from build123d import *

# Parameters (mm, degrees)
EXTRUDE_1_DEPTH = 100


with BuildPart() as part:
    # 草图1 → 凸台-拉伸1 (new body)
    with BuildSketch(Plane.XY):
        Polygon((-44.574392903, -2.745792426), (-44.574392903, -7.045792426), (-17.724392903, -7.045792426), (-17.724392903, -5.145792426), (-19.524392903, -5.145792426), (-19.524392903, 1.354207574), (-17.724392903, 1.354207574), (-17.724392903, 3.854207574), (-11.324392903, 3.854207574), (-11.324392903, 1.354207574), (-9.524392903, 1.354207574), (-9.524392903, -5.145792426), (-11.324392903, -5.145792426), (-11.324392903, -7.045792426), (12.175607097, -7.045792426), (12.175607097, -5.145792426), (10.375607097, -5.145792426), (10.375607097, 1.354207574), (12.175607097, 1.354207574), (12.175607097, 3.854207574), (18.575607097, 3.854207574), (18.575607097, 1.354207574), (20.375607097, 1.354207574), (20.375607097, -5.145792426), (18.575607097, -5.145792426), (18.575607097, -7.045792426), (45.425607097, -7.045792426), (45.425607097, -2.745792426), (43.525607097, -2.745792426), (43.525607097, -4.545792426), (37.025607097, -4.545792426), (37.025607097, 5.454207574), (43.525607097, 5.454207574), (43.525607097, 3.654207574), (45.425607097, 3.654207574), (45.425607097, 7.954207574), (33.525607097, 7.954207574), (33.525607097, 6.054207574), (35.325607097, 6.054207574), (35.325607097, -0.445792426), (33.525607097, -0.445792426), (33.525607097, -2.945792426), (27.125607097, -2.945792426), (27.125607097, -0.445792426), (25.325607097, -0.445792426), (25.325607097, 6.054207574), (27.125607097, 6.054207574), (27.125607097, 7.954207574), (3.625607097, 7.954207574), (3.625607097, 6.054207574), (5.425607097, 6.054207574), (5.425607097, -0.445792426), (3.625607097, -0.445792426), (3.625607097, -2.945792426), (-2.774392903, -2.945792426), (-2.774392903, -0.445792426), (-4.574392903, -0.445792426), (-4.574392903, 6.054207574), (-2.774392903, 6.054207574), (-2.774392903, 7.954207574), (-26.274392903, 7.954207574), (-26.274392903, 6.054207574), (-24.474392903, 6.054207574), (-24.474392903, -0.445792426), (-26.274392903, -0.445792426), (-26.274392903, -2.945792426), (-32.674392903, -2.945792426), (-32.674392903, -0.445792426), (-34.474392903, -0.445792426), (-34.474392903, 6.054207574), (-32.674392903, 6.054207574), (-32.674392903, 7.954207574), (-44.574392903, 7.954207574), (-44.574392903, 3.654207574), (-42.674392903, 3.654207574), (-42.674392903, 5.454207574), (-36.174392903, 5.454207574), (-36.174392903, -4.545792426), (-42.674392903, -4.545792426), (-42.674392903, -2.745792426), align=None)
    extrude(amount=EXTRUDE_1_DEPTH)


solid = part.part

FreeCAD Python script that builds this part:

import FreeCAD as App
import Part
import Sketcher

V = App.Vector


def add_polygon(sketch, points):
    """Adds a closed chain of lines whose ends are joined by coincident constraints."""
    first, n = sketch.GeometryCount, len(points)
    for a, b in zip(points, points[1:] + points[:1]):
        sketch.addGeometry(Part.LineSegment(App.Vector(*a, 0), App.Vector(*b, 0)), False)
    for i in range(n):
        sketch.addConstraint(Sketcher.Constraint("Coincident", first + i, 2, first + (i + 1) % n, 1))

doc = App.newDocument("Part")
body = doc.addObject("PartDesign::Body", "Body")

sketch1 = body.newObject("Sketcher::SketchObject", "Sketch")
sketch1.AttachmentSupport = (doc.getObject("XY_Plane"), [""])
sketch1.MapMode = "FlatFace"
add_polygon(sketch1, [(-44.6, -2.7), (-44.6, -7), (-17.7, -7), (-17.7, -5.1), (-19.5, -5.1), (-19.5, 1.4), (-17.7, 1.4), (-17.7, 3.9), (-11.3, 3.9), (-11.3, 1.4), (-9.5, 1.4), (-9.5, -5.1), (-11.3, -5.1), (-11.3, -7), (12.2, -7), (12.2, -5.1), (10.4, -5.1), (10.4, 1.4), (12.2, 1.4), (12.2, 3.9), (18.6, 3.9), (18.6, 1.4), (20.4, 1.4), (20.4, -5.1), (18.6, -5.1), (18.6, -7), (45.4, -7), (45.4, -2.7), (43.5, -2.7), (43.5, -4.5), (37, -4.5), (37, 5.5), (43.5, 5.5), (43.5, 3.7), (45.4, 3.7), (45.4, 8), (33.5, 8), (33.5, 6.1), (35.3, 6.1), (35.3, -0.4), (33.5, -0.4), (33.5, -2.9), (27.1, -2.9), (27.1, -0.4), (25.3, -0.4), (25.3, 6.1), (27.1, 6.1), (27.1, 8), (3.6, 8), (3.6, 6.1), (5.4, 6.1), (5.4, -0.4), (3.6, -0.4), (3.6, -2.9), (-2.8, -2.9), (-2.8, -0.4), (-4.6, -0.4), (-4.6, 6.1), (-2.8, 6.1), (-2.8, 8), (-26.3, 8), (-26.3, 6.1), (-24.5, 6.1), (-24.5, -0.4), (-26.3, -0.4), (-26.3, -2.9), (-32.7, -2.9), (-32.7, -0.4), (-34.5, -0.4), (-34.5, 6.1), (-32.7, 6.1), (-32.7, 8), (-44.6, 8), (-44.6, 3.7), (-42.7, 3.7), (-42.7, 5.5), (-36.2, 5.5), (-36.2, -4.5), (-42.7, -4.5), (-42.7, -2.7)])
sketch1.addConstraint(Sketcher.Constraint("Vertical", 0))
sketch1.addConstraint(Sketcher.Constraint("Horizontal", 1))
sketch1.addConstraint(Sketcher.Constraint("Vertical", 2))
sketch1.addConstraint(Sketcher.Constraint("Horizontal", 3))
sketch1.addConstraint(Sketcher.Constraint("Vertical", 4))
sketch1.addConstraint(Sketcher.Constraint("Horizontal", 5))
sketch1.addConstraint(Sketcher.Constraint("Vertical", 6))
sketch1.addConstraint(Sketcher.Constraint("Horizontal", 7))
sketch1.addConstraint(Sketcher.Constraint("Vertical", 8))
sketch1.addConstraint(Sketcher.Constraint("Horizontal", 9))
sketch1.addConstraint(Sketcher.Constraint("Vertical", 10))
sketch1.addConstraint(Sketcher.Constraint("Horizontal", 11))
sketch1.addConstraint(Sketcher.Constraint("Vertical", 12))
sketch1.addConstraint(Sketcher.Constraint("Horizontal", 13))
sketch1.addConstraint(Sketcher.Constraint("Vertical", 14))
sketch1.addConstraint(Sketcher.Constraint("Horizontal", 15))
sketch1.addConstraint(Sketcher.Constraint("Vertical", 16))
sketch1.addConstraint(Sketcher.Constraint("Horizontal", 17))
sketch1.addConstraint(Sketcher.Constraint("Vertical", 18))
sketch1.addConstraint(Sketcher.Constraint("Horizontal", 19))
sketch1.addConstraint(Sketcher.Constraint("Vertical", 20))
sketch1.addConstraint(Sketcher.Constraint("Horizontal", 21))
sketch1.addConstraint(Sketcher.Constraint("Vertical", 22))
sketch1.addConstraint(Sketcher.Constraint("Horizontal", 23))
sketch1.addConstraint(Sketcher.Constraint("Vertical", 24))
sketch1.addConstraint(Sketcher.Constraint("Horizontal", 25))
sketch1.addConstraint(Sketcher.Constraint("Vertical", 26))
sketch1.addConstraint(Sketcher.Constraint("Horizontal", 27))
sketch1.addConstraint(Sketcher.Constraint("Vertical", 28))
sketch1.addConstraint(Sketcher.Constraint("Horizontal", 29))
sketch1.addConstraint(Sketcher.Constraint("Vertical", 30))
sketch1.addConstraint(Sketcher.Constraint("Horizontal", 31))
sketch1.addConstraint(Sketcher.Constraint("Vertical", 32))
sketch1.addConstraint(Sketcher.Constraint("Horizontal", 33))
sketch1.addConstraint(Sketcher.Constraint("Vertical", 34))
sketch1.addConstraint(Sketcher.Constraint("Horizontal", 35))
sketch1.addConstraint(Sketcher.Constraint("Vertical", 36))
sketch1.addConstraint(Sketcher.Constraint("Horizontal", 37))
sketch1.addConstraint(Sketcher.Constraint("Vertical", 38))
sketch1.addConstraint(Sketcher.Constraint("Horizontal", 39))
sketch1.addConstraint(Sketcher.Constraint("Vertical", 40))
sketch1.addConstraint(Sketcher.Constraint("Horizontal", 41))
sketch1.addConstraint(Sketcher.Constraint("Vertical", 42))
sketch1.addConstraint(Sketcher.Constraint("Horizontal", 43))
sketch1.addConstraint(Sketcher.Constraint("Vertical", 44))
sketch1.addConstraint(Sketcher.Constraint("Horizontal", 45))
sketch1.addConstraint(Sketcher.Constraint("Vertical", 46))
sketch1.addConstraint(Sketcher.Constraint("Horizontal", 47))
sketch1.addConstraint(Sketcher.Constraint("Vertical", 48))
sketch1.addConstraint(Sketcher.Constraint("Horizontal", 49))
sketch1.addConstraint(Sketcher.Constraint("Vertical", 50))
sketch1.addConstraint(Sketcher.Constraint("Horizontal", 51))
sketch1.addConstraint(Sketcher.Constraint("Vertical", 52))
sketch1.addConstraint(Sketcher.Constraint("Horizontal", 53))
sketch1.addConstraint(Sketcher.Constraint("Vertical", 54))
sketch1.addConstraint(Sketcher.Constraint("Horizontal", 55))
sketch1.addConstraint(Sketcher.Constraint("Vertical", 56))
sketch1.addConstraint(Sketcher.Constraint("Horizontal", 57))
sketch1.addConstraint(Sketcher.Constraint("Vertical", 58))
sketch1.addConstraint(Sketcher.Constraint("Horizontal", 59))
sketch1.addConstraint(Sketcher.Constraint("Vertical", 60))
sketch1.addConstraint(Sketcher.Constraint("Horizontal", 61))
sketch1.addConstraint(Sketcher.Constraint("Vertical", 62))
sketch1.addConstraint(Sketcher.Constraint("Horizontal", 63))
sketch1.addConstraint(Sketcher.Constraint("Vertical", 64))
sketch1.addConstraint(Sketcher.Constraint("Horizontal", 65))
sketch1.addConstraint(Sketcher.Constraint("Vertical", 66))
sketch1.addConstraint(Sketcher.Constraint("Horizontal", 67))
sketch1.addConstraint(Sketcher.Constraint("Vertical", 68))
sketch1.addConstraint(Sketcher.Constraint("Horizontal", 69))
sketch1.addConstraint(Sketcher.Constraint("Vertical", 70))
sketch1.addConstraint(Sketcher.Constraint("Horizontal", 71))
sketch1.addConstraint(Sketcher.Constraint("Vertical", 72))
sketch1.addConstraint(Sketcher.Constraint("Horizontal", 73))
sketch1.addConstraint(Sketcher.Constraint("Vertical", 74))
sketch1.addConstraint(Sketcher.Constraint("Horizontal", 75))
sketch1.addConstraint(Sketcher.Constraint("Vertical", 76))
sketch1.addConstraint(Sketcher.Constraint("Horizontal", 77))
sketch1.addConstraint(Sketcher.Constraint("Vertical", 78))
sketch1.addConstraint(Sketcher.Constraint("Horizontal", 79))
sketch1.addConstraint(Sketcher.Constraint("Horizontal", 5, 2, 8, 2))
sketch1.addConstraint(Sketcher.Constraint("Horizontal", 3, 2, 10, 2))
sketch1.addConstraint(Sketcher.Constraint("Horizontal", 1, 2, 12, 2))
sketch1.addConstraint(Sketcher.Constraint("Horizontal", 11, 2, 14, 2))
sketch1.addConstraint(Sketcher.Constraint("Horizontal", 9, 2, 16, 2))
sketch1.addConstraint(Sketcher.Constraint("Horizontal", 7, 2, 18, 2))
sketch1.addConstraint(Sketcher.Constraint("Horizontal", 17, 2, 20, 2))
sketch1.addConstraint(Sketcher.Constraint("Horizontal", 15, 2, 22, 2))
sketch1.addConstraint(Sketcher.Constraint("Horizontal", 13, 2, 24, 2))
sketch1.addConstraint(Sketcher.Constraint("Horizontal", 39, 2, 42, 2))
sketch1.addConstraint(Sketcher.Constraint("Horizontal", 37, 2, 44, 2))
sketch1.addConstraint(Sketcher.Constraint("Horizontal", 35, 2, 46, 2))
sketch1.addConstraint(Sketcher.Constraint("Horizontal", 45, 2, 48, 2))
sketch1.addConstraint(Sketcher.Constraint("Horizontal", 43, 2, 50, 2))
sketch1.addConstraint(Sketcher.Constraint("Horizontal", 41, 2, 52, 2))
sketch1.addConstraint(Sketcher.Constraint("Horizontal", 51, 2, 54, 2))
sketch1.addConstraint(Sketcher.Constraint("Horizontal", 49, 2, 56, 2))
sketch1.addConstraint(Sketcher.Constraint("Horizontal", 47, 2, 58, 2))
sketch1.addConstraint(Sketcher.Constraint("Horizontal", 57, 2, 60, 2))
sketch1.addConstraint(Sketcher.Constraint("Horizontal", 55, 2, 62, 2))
sketch1.addConstraint(Sketcher.Constraint("Horizontal", 53, 2, 64, 2))
sketch1.addConstraint(Sketcher.Constraint("Horizontal", 63, 2, 66, 2))
sketch1.addConstraint(Sketcher.Constraint("Horizontal", 61, 2, 68, 2))
sketch1.addConstraint(Sketcher.Constraint("Horizontal", 59, 2, 70, 2))
sketch1.addConstraint(Sketcher.Constraint("Horizontal", 33, 2, 72, 2))
sketch1.addConstraint(Sketcher.Constraint("Horizontal", 31, 2, 74, 2))
sketch1.addConstraint(Sketcher.Constraint("Horizontal", 29, 2, 76, 2))
sketch1.addConstraint(Sketcher.Constraint("Horizontal", 27, 2, 78, 2))
sketch1.addConstraint(Sketcher.Constraint("Vertical", 2, 2, 5, 2))
sketch1.addConstraint(Sketcher.Constraint("Vertical", 8, 2, 11, 2))
sketch1.addConstraint(Sketcher.Constraint("Vertical", 14, 2, 17, 2))
sketch1.addConstraint(Sketcher.Constraint("Vertical", 20, 2, 23, 2))
sketch1.addConstraint(Sketcher.Constraint("Vertical", 28, 2, 31, 2))
sketch1.addConstraint(Sketcher.Constraint("Vertical", 26, 2, 33, 2))
sketch1.addConstraint(Sketcher.Constraint("Vertical", 36, 2, 39, 2))
sketch1.addConstraint(Sketcher.Constraint("Vertical", 42, 2, 45, 2))
sketch1.addConstraint(Sketcher.Constraint("Vertical", 48, 2, 51, 2))
sketch1.addConstraint(Sketcher.Constraint("Vertical", 54, 2, 57, 2))
sketch1.addConstraint(Sketcher.Constraint("Vertical", 60, 2, 63, 2))
sketch1.addConstraint(Sketcher.Constraint("Vertical", 66, 2, 69, 2))
sketch1.addConstraint(Sketcher.Constraint("Vertical", 0, 2, 71, 2))
sketch1.addConstraint(Sketcher.Constraint("Vertical", 74, 2, 77, 2))
sketch1.addConstraint(Sketcher.Constraint("Equal", 5, 9))
sketch1.addConstraint(Sketcher.Constraint("Equal", 11, 15))
sketch1.addConstraint(Sketcher.Constraint("Equal", 7, 19))
sketch1.addConstraint(Sketcher.Constraint("Equal", 17, 21))
sketch1.addConstraint(Sketcher.Constraint("Equal", 1, 25))
sketch1.addConstraint(Sketcher.Constraint("Equal", 23, 37))
sketch1.addConstraint(Sketcher.Constraint("Equal", 19, 41))
sketch1.addConstraint(Sketcher.Constraint("Equal", 39, 43))
sketch1.addConstraint(Sketcher.Constraint("Equal", 13, 47))
sketch1.addConstraint(Sketcher.Constraint("Equal", 45, 49))
sketch1.addConstraint(Sketcher.Constraint("Equal", 41, 53))
sketch1.addConstraint(Sketcher.Constraint("Equal", 51, 55))
sketch1.addConstraint(Sketcher.Constraint("Equal", 47, 59))
sketch1.addConstraint(Sketcher.Constraint("Equal", 57, 61))
sketch1.addConstraint(Sketcher.Constraint("Equal", 53, 65))
sketch1.addConstraint(Sketcher.Constraint("Equal", 63, 67))
sketch1.addConstraint(Sketcher.Constraint("Equal", 35, 71))
sketch1.addConstraint(Sketcher.Constraint("Equal", 33, 73))
sketch1.addConstraint(Sketcher.Constraint("Equal", 31, 75))
sketch1.addConstraint(Sketcher.Constraint("Equal", 79, 2))
sketch1.addConstraint(Sketcher.Constraint("Equal", 77, 4))
sketch1.addConstraint(Sketcher.Constraint("Equal", 69, 28))
sketch1.addConstraint(Sketcher.Constraint("Equal", 28, 32))
sketch1.addConstraint(Sketcher.Constraint("Equal", 26, 34))
sketch1.addConstraint(Sketcher.Constraint("Equal", 24, 36))
sketch1.addConstraint(Sketcher.Constraint("Equal", 22, 38))
sketch1.addConstraint(Sketcher.Constraint("Equal", 20, 40))
sketch1.addConstraint(Sketcher.Constraint("DistanceY", 30, 1, 30, 2, 10.0))
sketch1.addConstraint(Sketcher.Constraint("DistanceX", 3, 2, 3, 1, 1.8))
sketch1.addConstraint(Sketcher.Constraint("DistanceX", 7, 1, 7, 2, 6.4))
sketch1.addConstraint(Sketcher.Constraint("DistanceX", 13, 1, 13, 2, 23.5))
sketch1.addConstraint(Sketcher.Constraint("DistanceX", 27, 2, 27, 1, 1.9))
sketch1.addConstraint(Sketcher.Constraint("DistanceX", 29, 2, 29, 1, 6.5))
sketch1.addConstraint(Sketcher.Constraint("DistanceX", 35, 2, 35, 1, 11.9))
sketch1.addConstraint(Sketcher.Constraint("DistanceY", 0, 2, 0, 1, 4.3))
sketch1.addConstraint(Sketcher.Constraint("DistanceY", 6, 1, 6, 2, 2.5))
sketch1.addConstraint(Sketcher.Constraint("DistanceX", 0, 2, -1, 1, 44.574393))
sketch1.addConstraint(Sketcher.Constraint("DistanceY", 0, 2, -1, 1, 7.045792))
pad1 = body.newObject("PartDesign::Pad", "Pad")
pad1.Profile = sketch1
pad1.Length = 100

doc.recompute()
